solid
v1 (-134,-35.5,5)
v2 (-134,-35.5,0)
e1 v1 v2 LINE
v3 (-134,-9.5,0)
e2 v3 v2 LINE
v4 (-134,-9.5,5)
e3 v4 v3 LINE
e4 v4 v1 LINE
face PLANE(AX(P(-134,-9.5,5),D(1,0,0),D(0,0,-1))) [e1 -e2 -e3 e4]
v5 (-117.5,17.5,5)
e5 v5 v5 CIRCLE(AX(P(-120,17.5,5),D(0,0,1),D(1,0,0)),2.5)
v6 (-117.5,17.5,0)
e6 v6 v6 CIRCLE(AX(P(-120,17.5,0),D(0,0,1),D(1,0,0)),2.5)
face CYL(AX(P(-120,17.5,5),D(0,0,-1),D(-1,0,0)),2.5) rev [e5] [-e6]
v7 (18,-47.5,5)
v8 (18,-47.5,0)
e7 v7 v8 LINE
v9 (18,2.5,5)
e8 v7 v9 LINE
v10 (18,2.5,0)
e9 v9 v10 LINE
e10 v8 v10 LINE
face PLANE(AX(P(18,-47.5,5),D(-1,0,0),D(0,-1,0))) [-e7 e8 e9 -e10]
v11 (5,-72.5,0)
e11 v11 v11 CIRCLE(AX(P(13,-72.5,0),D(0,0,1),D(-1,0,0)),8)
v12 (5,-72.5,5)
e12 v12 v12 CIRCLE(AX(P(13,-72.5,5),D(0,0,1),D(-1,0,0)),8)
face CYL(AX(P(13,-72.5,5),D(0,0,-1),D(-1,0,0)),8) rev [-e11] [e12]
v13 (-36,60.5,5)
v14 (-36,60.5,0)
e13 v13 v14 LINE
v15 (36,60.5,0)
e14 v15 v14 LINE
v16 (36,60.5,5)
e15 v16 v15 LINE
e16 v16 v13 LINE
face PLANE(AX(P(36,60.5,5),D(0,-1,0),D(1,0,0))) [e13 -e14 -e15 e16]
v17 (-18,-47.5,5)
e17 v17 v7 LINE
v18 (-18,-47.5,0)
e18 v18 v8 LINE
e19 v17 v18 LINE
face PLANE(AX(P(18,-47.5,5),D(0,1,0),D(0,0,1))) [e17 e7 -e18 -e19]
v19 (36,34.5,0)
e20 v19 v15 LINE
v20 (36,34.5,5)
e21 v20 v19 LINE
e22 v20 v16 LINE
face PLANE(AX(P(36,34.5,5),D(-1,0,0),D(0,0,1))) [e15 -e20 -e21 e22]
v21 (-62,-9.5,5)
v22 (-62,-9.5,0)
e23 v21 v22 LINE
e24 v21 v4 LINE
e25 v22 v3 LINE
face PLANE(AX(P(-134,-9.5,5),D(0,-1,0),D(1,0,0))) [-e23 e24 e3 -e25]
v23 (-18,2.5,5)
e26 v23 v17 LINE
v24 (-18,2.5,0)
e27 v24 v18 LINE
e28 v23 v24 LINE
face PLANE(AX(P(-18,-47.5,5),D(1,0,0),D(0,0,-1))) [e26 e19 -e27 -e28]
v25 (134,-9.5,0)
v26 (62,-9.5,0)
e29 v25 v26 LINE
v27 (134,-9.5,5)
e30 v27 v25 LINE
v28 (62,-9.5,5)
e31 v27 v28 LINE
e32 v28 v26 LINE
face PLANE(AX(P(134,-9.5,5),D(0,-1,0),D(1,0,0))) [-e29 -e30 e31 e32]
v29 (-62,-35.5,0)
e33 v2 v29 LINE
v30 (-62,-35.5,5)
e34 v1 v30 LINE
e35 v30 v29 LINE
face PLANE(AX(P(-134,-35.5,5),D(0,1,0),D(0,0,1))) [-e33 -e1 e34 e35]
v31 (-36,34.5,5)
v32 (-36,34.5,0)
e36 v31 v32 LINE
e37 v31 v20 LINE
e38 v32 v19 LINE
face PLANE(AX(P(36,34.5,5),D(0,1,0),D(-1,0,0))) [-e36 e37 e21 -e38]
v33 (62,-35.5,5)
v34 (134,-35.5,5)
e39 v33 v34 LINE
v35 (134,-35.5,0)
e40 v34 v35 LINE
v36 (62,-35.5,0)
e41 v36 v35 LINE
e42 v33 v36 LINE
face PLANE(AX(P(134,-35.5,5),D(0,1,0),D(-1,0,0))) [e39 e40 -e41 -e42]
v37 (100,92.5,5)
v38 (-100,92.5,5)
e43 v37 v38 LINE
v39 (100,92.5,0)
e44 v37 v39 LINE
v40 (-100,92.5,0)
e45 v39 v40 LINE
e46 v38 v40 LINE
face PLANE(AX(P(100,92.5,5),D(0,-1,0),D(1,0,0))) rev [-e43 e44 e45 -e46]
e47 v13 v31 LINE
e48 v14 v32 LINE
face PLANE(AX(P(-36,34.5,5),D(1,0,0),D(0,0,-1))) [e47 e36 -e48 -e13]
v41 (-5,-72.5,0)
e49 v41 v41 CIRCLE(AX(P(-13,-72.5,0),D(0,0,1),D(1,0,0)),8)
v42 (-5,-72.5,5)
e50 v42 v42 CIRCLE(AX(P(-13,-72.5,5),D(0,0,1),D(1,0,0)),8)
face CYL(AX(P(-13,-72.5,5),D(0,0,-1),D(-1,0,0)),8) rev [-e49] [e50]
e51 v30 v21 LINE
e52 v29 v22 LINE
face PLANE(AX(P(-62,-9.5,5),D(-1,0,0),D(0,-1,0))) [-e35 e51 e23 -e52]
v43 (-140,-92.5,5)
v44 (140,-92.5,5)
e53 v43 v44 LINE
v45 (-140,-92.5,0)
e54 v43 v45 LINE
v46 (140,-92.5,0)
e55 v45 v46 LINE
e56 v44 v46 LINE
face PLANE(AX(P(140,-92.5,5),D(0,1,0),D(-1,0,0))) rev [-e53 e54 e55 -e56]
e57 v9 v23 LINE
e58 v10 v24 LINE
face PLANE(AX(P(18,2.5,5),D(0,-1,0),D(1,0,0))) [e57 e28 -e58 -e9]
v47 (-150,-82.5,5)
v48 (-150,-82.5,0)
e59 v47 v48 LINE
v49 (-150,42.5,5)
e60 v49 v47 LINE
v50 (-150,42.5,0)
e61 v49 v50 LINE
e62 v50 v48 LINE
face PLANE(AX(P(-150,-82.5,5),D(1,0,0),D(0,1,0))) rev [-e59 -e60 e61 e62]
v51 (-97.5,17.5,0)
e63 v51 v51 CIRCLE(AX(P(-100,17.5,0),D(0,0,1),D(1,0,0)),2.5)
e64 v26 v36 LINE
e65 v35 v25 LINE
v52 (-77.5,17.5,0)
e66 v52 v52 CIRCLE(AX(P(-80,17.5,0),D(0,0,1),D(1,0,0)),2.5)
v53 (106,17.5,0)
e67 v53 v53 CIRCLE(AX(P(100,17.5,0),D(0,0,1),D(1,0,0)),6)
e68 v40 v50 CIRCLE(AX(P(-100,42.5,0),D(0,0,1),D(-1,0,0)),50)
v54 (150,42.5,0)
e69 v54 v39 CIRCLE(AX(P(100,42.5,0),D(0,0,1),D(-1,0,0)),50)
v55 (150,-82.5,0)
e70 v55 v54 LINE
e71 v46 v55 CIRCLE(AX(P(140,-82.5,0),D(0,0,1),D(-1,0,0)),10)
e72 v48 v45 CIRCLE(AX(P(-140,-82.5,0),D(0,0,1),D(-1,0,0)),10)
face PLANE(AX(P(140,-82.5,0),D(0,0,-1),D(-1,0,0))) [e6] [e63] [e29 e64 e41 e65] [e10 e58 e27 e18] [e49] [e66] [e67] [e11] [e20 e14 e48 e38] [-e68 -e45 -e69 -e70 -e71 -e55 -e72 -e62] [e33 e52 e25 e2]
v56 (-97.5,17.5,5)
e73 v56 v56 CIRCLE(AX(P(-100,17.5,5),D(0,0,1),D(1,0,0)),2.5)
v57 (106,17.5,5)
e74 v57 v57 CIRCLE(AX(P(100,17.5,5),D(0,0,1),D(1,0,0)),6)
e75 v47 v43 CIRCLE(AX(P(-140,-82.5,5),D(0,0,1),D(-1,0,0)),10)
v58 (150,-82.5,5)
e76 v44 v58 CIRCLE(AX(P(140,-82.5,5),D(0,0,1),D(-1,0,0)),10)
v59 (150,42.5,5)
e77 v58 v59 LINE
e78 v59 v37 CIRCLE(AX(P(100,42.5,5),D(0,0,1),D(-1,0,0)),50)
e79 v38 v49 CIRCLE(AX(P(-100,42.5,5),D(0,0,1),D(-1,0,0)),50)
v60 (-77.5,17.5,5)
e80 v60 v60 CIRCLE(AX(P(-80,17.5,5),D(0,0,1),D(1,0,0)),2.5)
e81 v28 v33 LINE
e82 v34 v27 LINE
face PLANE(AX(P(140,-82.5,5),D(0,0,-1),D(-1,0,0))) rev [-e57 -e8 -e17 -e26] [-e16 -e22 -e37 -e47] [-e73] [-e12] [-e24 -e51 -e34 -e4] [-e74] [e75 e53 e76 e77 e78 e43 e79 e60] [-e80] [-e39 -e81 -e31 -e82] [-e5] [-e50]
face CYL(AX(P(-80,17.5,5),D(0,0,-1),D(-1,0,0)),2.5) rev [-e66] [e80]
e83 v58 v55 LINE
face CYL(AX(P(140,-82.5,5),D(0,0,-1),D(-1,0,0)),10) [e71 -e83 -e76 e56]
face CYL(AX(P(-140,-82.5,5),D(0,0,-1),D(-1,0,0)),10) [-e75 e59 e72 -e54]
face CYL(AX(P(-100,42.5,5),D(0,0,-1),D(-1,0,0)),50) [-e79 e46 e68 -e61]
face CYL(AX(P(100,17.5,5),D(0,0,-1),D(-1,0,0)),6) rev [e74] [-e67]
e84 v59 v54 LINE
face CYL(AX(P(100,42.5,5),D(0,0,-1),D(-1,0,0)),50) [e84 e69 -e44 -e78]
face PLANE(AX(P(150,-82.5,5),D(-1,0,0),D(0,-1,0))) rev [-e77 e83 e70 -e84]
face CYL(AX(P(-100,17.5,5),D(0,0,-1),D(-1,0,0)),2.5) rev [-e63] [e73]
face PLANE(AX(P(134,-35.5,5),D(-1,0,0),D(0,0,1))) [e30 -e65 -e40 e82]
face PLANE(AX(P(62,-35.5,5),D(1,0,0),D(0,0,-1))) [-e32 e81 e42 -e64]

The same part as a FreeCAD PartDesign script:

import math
import FreeCAD as App
import Part
import Sketcher

V = App.Vector

doc = App.newDocument("Part")
body = doc.addObject("PartDesign::Body", "Body")

sketch1 = body.newObject("Sketcher::SketchObject", "Sketch")
sketch1.AttachmentSupport = (doc.getObject("XY_Plane"), [""])
sketch1.MapMode = "FlatFace"
sketch1.addGeometry([
    Part.LineSegment(V(-140, -92.5, 0), V(140, -92.5, 0)),
    Part.ArcOfCircle(Part.Circle(V(140, -82.5, 0), V(0, 0, 1), 10), math.radians(-90), math.radians(0)),
    Part.LineSegment(V(150, -82.5, 0), V(150, 42.5, 0)),
    Part.ArcOfCircle(Part.Circle(V(100, 42.5, 0), V(0, 0, 1), 50), math.radians(0), math.radians(90)),
    Part.LineSegment(V(100, 92.5, 0), V(-100, 92.5, 0)),
    Part.ArcOfCircle(Part.Circle(V(-100, 42.5, 0), V(0, 0, 1), 50), math.radians(90), math.radians(180)),
    Part.LineSegment(V(-150, 42.5, 0), V(-150, -82.5, 0)),
    Part.ArcOfCircle(Part.Circle(V(-140, -82.5, 0), V(0, 0, 1), 10), math.radians(180), math.radians(270)),
    Part.Circle(V(13, -72.5, 0), V(0, 0, 1), 8),
    Part.LineSegment(V(62, -35.5, 0), V(62, -9.5, 0)),
    Part.LineSegment(V(62, -9.5, 0), V(134, -9.5, 0)),
    Part.LineSegment(V(134, -9.5, 0), V(134, -35.5, 0)),
    Part.LineSegment(V(134, -35.5, 0), V(62, -35.5, 0)),
    Part.Circle(V(-13, -72.5, 0), V(0, 0, 1), 8),
    Part.LineSegment(V(-18, -47.5, 0), V(-18, 2.5, 0)),
    Part.LineSegment(V(-18, 2.5, 0), V(18, 2.5, 0)),
    Part.LineSegment(V(18, 2.5, 0), V(18, -47.5, 0)),
    Part.LineSegment(V(18, -47.5, 0), V(-18, -47.5, 0)),
    Part.LineSegment(V(-134, -35.5, 0), V(-134, -9.5, 0)),
    Part.LineSegment(V(-134, -9.5, 0), V(-62, -9.5, 0)),
    Part.LineSegment(V(-62, -9.5, 0), V(-62, -35.5, 0)),
    Part.LineSegment(V(-62, -35.5, 0), V(-134, -35.5, 0)),
    Part.Circle(V(100, 17.5, 0), V(0, 0, 1), 6),
    Part.Circle(V(-80, 17.5, 0), V(0, 0, 1), 2.5),
    Part.Circle(V(-100, 17.5, 0), V(0, 0, 1), 2.5),
    Part.Circle(V(-120, 17.5, 0), V(0, 0, 1), 2.5),
    Part.LineSegment(V(-36, 34.5, 0), V(-36, 60.5, 0)),
    Part.LineSegment(V(-36, 60.5, 0), V(36, 60.5, 0)),
    Part.LineSegment(V(36, 60.5, 0), V(36, 34.5, 0)),
    Part.LineSegment(V(36, 34.5, 0), V(-36, 34.5, 0)),
], False)
sketch1.addConstraint([
    Sketcher.Constraint("Tangent", 0, 2, 1, 1),
    Sketcher.Constraint("Tangent", 1, 2, 2, 1),
    Sketcher.Constraint("Tangent", 2, 2, 3, 1),
    Sketcher.Constraint("Tangent", 3, 2, 4, 1),
    Sketcher.Constraint("Tangent", 4, 2, 5, 1),
    Sketcher.Constraint("Tangent", 5, 2, 6, 1),
    Sketcher.Constraint("Tangent", 6, 2, 7, 1),
    Sketcher.Constraint("Tangent", 7, 2, 0, 1),
    Sketcher.Constraint("Coincident", 9, 2, 10, 1),
    Sketcher.Constraint("Coincident", 10, 2, 11, 1),
    Sketcher.Constraint("Coincident", 11, 2, 12, 1),
    Sketcher.Constraint("Coincident", 12, 2, 9, 1),
    Sketcher.Constraint("Coincident", 14, 2, 15, 1),
    Sketcher.Constraint("Coincident", 15, 2, 16, 1),
    Sketcher.Constraint("Coincident", 16, 2, 17, 1),
    Sketcher.Constraint("Coincident", 17, 2, 14, 1),
    Sketcher.Constraint("Coincident", 18, 2, 19, 1),
    Sketcher.Constraint("Coincident", 19, 2, 20, 1),
    Sketcher.Constraint("Coincident", 20, 2, 21, 1),
    Sketcher.Constraint("Coincident", 21, 2, 18, 1),
    Sketcher.Constraint("Coincident", 26, 2, 27, 1),
    Sketcher.Constraint("Coincident", 27, 2, 28, 1),
    Sketcher.Constraint("Coincident", 28, 2, 29, 1),
    Sketcher.Constraint("Coincident", 29, 2, 26, 1),
    Sketcher.Constraint("Horizontal", 0),
    Sketcher.Constraint("Vertical", 2),
    Sketcher.Constraint("Horizontal", 4),
    Sketcher.Constraint("Vertical", 6),
    Sketcher.Constraint("Vertical", 9),
    Sketcher.Constraint("Horizontal", 10),
    Sketcher.Constraint("Vertical", 11),
    Sketcher.Constraint("Horizontal", 12),
    Sketcher.Constraint("Vertical", 14),
    Sketcher.Constraint("Horizontal", 15),
    Sketcher.Constraint("Vertical", 16),
    Sketcher.Constraint("Horizontal", 17),
    Sketcher.Constraint("Vertical", 18),
    Sketcher.Constraint("Horizontal", 19),
    Sketcher.Constraint("Vertical", 20),
    Sketcher.Constraint("Horizontal", 21),
    Sketcher.Constraint("Vertical", 26),
    Sketcher.Constraint("Horizontal", 27),
    Sketcher.Constraint("Vertical", 28),
    Sketcher.Constraint("Horizontal", 29),
    Sketcher.Constraint("Equal", 3, 5),
    Sketcher.Constraint("Equal", 1, 7),
    Sketcher.Constraint("Equal", 8, 13),
    Sketcher.Constraint("Equal", 23, 24),
    Sketcher.Constraint("Equal", 24, 25),
    Sketcher.Constraint("Symmetric", 8, 3, 13, 3, -2),
    Sketcher.Constraint("Symmetric", 22, 3, 24, 3, -2),
    Sketcher.Constraint("Symmetric", 10, 2, 18, 2, -2),
    Sketcher.Constraint("Symmetric", 12, 2, 20, 2, -2),
    Sketcher.Constraint("Horizontal", 22, 3, 23, 3),
    Sketcher.Constraint("Horizontal", 24, 3, 25, 3),
    Sketcher.Constraint("Vertical", 3, 3, 22, 3),
    Sketcher.Constraint("Vertical", 5, 3, 24, 3),
    Sketcher.Constraint("Equal", 21, 27),
    Sketcher.Constraint("Equal", 20, 26),
    Sketcher.Constraint("Diameter", 8, 16.0),
    Sketcher.Constraint("Diameter", 22, 12.0),
    Sketcher.Constraint("Diameter", 23, 5.0),
    Sketcher.Constraint("Radius", 1, 10.0),
    Sketcher.Constraint("Radius", 3, 50.0),
    Sketcher.Constraint("DistanceX", 0, 1, 0, 2, 280.0),
    Sketcher.Constraint("DistanceX", 10, 1, 10, 2, 72.0),
    Sketcher.Constraint("DistanceX", 15, 1, 15, 2, 36.0),
    Sketcher.Constraint("DistanceY", 2, 1, 2, 2, 125.0),
    Sketcher.Constraint("DistanceY", 9, 1, 9, 2, 26.0),
    Sketcher.Constraint("DistanceY", 14, 1, 14, 2, 50.0),
    Sketcher.Constraint("DistanceX", -1, 1, 8, 3, 13.0),
    Sketcher.Constraint("DistanceX", 23, 3, -1, 1, 80.0),
    Sketcher.Constraint("DistanceX", 25, 3, -1, 1, 120.0),
    Sketcher.Constraint("DistanceX", -1, 1, 9, 2, 62.0),
    Sketcher.Constraint("DistanceX", 14, 2, -1, 1, 18.0),
    Sketcher.Constraint("DistanceX", 26, 2, -1, 1, 36.0),
    Sketcher.Constraint("DistanceY", 1, 3, 8, 3, 10.0),
    Sketcher.Constraint("DistanceY", 22, 3, 3, 3, 25.0),
    Sketcher.Constraint("DistanceY", 9, 2, 22, 3, 27.0),
    Sketcher.Constraint("DistanceY", 14, 2, 23, 3, 15.0),
    Sketcher.Constraint("DistanceY", 14, 2, 26, 2, 58.0),
    Sketcher.Constraint("DistanceY", 1, 3, -1, 1, 82.5),
])
pad1 = body.newObject("PartDesign::Pad", "Pad")
pad1.Profile = sketch1
pad1.Length = 5

doc.recompute()
